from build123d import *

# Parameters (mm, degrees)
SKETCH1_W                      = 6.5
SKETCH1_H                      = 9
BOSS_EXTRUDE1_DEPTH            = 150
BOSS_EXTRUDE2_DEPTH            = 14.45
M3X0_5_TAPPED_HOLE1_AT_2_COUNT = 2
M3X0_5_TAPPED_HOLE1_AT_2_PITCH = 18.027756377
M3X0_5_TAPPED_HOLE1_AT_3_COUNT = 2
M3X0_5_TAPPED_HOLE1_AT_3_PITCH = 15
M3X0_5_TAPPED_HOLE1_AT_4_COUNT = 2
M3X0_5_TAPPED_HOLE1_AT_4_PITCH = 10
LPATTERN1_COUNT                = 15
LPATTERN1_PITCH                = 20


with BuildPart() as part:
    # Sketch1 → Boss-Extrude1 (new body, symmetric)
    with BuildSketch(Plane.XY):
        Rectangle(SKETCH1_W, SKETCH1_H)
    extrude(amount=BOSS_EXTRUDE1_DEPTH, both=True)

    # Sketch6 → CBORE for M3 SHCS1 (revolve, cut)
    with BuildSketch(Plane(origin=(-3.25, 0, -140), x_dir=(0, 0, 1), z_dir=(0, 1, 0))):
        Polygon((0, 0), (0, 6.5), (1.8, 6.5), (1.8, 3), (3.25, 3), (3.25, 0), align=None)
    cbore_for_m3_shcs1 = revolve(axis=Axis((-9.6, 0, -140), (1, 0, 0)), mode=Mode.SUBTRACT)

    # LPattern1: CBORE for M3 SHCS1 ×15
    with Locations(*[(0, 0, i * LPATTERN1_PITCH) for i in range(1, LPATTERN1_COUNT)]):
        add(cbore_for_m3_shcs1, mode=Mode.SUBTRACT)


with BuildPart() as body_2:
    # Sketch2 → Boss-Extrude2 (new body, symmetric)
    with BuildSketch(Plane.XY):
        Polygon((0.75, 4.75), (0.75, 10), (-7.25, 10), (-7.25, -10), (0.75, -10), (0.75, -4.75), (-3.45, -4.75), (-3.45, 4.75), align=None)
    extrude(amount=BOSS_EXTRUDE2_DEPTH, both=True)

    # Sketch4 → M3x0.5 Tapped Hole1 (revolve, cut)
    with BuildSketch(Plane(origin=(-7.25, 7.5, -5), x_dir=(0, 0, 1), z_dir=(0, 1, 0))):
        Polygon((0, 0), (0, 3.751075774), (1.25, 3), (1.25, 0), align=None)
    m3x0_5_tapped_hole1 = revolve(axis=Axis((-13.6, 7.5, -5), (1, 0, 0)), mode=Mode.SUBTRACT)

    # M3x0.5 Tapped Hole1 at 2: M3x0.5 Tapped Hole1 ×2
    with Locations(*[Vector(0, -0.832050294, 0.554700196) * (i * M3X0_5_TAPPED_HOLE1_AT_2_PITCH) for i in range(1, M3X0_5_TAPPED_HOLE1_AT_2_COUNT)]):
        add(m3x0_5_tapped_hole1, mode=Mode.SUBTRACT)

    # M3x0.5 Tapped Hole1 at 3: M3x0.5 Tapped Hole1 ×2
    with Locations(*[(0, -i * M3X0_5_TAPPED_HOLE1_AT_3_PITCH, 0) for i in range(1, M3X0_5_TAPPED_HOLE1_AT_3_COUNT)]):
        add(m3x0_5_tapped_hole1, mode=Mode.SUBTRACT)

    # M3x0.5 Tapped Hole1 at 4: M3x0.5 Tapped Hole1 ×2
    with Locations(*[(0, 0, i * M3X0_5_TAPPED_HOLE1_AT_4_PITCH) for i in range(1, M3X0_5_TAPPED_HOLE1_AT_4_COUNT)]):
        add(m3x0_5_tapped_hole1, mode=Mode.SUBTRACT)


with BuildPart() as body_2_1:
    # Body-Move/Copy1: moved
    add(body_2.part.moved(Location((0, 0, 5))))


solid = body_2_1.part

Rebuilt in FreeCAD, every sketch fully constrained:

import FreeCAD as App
import Part
import Sketcher
from FreeCAD import Vector
Q = App.Units.Quantity

doc = App.newDocument("Part")
body = doc.addObject("PartDesign::Body", "Body")

# Sketch on XY plane
sketch1 = body.newObject("Sketcher::SketchObject", "Sketch")
sketch1.AttachmentSupport = (doc.getObject("XY_Plane"), [""])
sketch1.MapMode = "FlatFace"
sketch1.addGeometry([
    Part.LineSegment(Vector(-3.25, 4.5, 0), Vector(-3.25, -4.5, 0)),
    Part.LineSegment(Vector(-3.25, -4.5, 0), Vector(3.25, -4.5, 0)),
    Part.LineSegment(Vector(3.25, -4.5, 0), Vector(3.25, 4.5, 0)),
    Part.LineSegment(Vector(3.25, 4.5, 0), Vector(-3.25, 4.5, 0)),
], False)
sketch1.addConstraint([
    Sketcher.Constraint("Coincident", 0, 2, 1, 1),
    Sketcher.Constraint("Coincident", 1, 2, 2, 1),
    Sketcher.Constraint("Coincident", 2, 2, 3, 1),
    Sketcher.Constraint("Coincident", 3, 2, 0, 1),
    Sketcher.Constraint("Vertical", 0),
    Sketcher.Constraint("Horizontal", 1),
    Sketcher.Constraint("Vertical", 2),
    Sketcher.Constraint("Horizontal", 3),
    Sketcher.Constraint("Symmetric", 0, 2, 2, 2, -1, 1),
    Sketcher.Constraint("DistanceY", 0, 2, 0, 1, Q("9 mm")),
    Sketcher.Constraint("DistanceX", 1, 1, 1, 2, Q("6.5 mm")),
])
pad1 = body.newObject("PartDesign::Pad", "Pad")
pad1.Profile = sketch1
pad1.Length = 300
pad1.Midplane = True

# Sketch on XZ plane
sketch2 = body.newObject("Sketcher::SketchObject", "Sketch001")
sketch2.AttachmentSupport = (doc.getObject("XZ_Plane"), [""])
sketch2.MapMode = "FlatFace"
sketch2.addGeometry([
    Part.LineSegment(Vector(3.25, -140, 0), Vector(-3.25, -140, 0)),  # 0
    Part.LineSegment(Vector(-3.25, -140, 0), Vector(-3.25, -136.75, 0)),  # 1
    Part.LineSegment(Vector(-3.25, -136.75, 0), Vector(-0.25, -136.75, 0)),  # 2
    Part.LineSegment(Vector(-0.25, -136.75, 0), Vector(-0.25, -138.2, 0)),  # 3
    Part.LineSegment(Vector(-0.25, -138.2, 0), Vector(3.25, -138.2, 0)),  # 4
    Part.LineSegment(Vector(3.25, -138.2, 0), Vector(3.25, -140, 0)),  # 5
], False)
sketch2.addGeometry(Part.LineSegment(Vector(-3.25, -140, 0), Vector(3.25, -140, 0)), True)  # axis
sketch2.addConstraint([
    Sketcher.Constraint("Coincident", 0, 2, 1, 1),
    Sketcher.Constraint("Coincident", 1, 2, 2, 1),
    Sketcher.Constraint("Coincident", 2, 2, 3, 1),
    Sketcher.Constraint("Coincident", 3, 2, 4, 1),
    Sketcher.Constraint("Coincident", 4, 2, 5, 1),
    Sketcher.Constraint("Coincident", 5, 2, 0, 1),
    Sketcher.Constraint("Horizontal", 0),
    Sketcher.Constraint("Vertical", 1),
    Sketcher.Constraint("Horizontal", 2),
    Sketcher.Constraint("Vertical", 3),
    Sketcher.Constraint("Horizontal", 4),
    Sketcher.Constraint("Vertical", 5),
    Sketcher.Constraint("Horizontal", 6),
    Sketcher.Constraint("Coincident", 6, 1, 0, 2),
    Sketcher.Constraint("Vertical", 4, 2, 6, 2),
    Sketcher.Constraint("DistanceX", 2, 1, 2, 2, Q("3 mm")),
    Sketcher.Constraint("DistanceX", 0, 2, 0, 1, Q("6.5 mm")),
    Sketcher.Constraint("DistanceY", 5, 2, 5, 1, Q("1.8 mm")),
    Sketcher.Constraint("DistanceY", 0, 2, -1, 1, Q("140 mm")),
    Sketcher.Constraint("DistanceY", 1, 1, 1, 2, Q("3.25 mm")),
    Sketcher.Constraint("DistanceX", 0, 2, -1, 1, Q("3.25 mm")),
])
groove = body.newObject("PartDesign::Groove", "Groove")
groove.Profile = sketch2
groove.ReferenceAxis = (sketch2, ["Axis0"])
groove.Angle = 360
doc.recompute()

linearpattern = body.newObject("PartDesign::LinearPattern", "LinearPattern")
linearpattern.Originals = [groove]
linearpattern.Direction = (doc.getObject("Z_Axis"), [""])
linearpattern.Mode = "offset"
linearpattern.Offset = 20
linearpattern.Occurrences = 15
body.Tip = linearpattern
body2 = doc.addObject("PartDesign::Body", "Body001")

# Sketch on XY plane
sketch3 = body2.newObject("Sketcher::SketchObject", "Sketch002")
sketch3.AttachmentSupport = (doc.getObject("XY_Plane001"), [""])
sketch3.MapMode = "FlatFace"
sketch3.addGeometry([
    Part.LineSegment(Vector(0.75, 4.75, 0), Vector(0.75, 10, 0)),  # 0
    Part.LineSegment(Vector(0.75, 10, 0), Vector(-7.25, 10, 0)),  # 1
    Part.LineSegment(Vector(-7.25, 10, 0), Vector(-7.25, -10, 0)),  # 2
    Part.LineSegment(Vector(-7.25, -10, 0), Vector(0.75, -10, 0)),  # 3
    Part.LineSegment(Vector(0.75, -10, 0), Vector(0.75, -4.75, 0)),  # 4
    Part.LineSegment(Vector(0.75, -4.75, 0), Vector(-3.45, -4.75, 0)),  # 5
    Part.LineSegment(Vector(-3.45, -4.75, 0), Vector(-3.45, 4.75, 0)),  # 6
    Part.LineSegment(Vector(-3.45, 4.75, 0), Vector(0.75, 4.75, 0)),  # 7
], False)
sketch3.addConstraint([
    Sketcher.Constraint("Coincident", 0, 2, 1, 1),
    Sketcher.Constraint("Coincident", 1, 2, 2, 1),
    Sketcher.Constraint("Coincident", 2, 2, 3, 1),
    Sketcher.Constraint("Coincident", 3, 2, 4, 1),
    Sketcher.Constraint("Coincident", 4, 2, 5, 1),
    Sketcher.Constraint("Coincident", 5, 2, 6, 1),
    Sketcher.Constraint("Coincident", 6, 2, 7, 1),
    Sketcher.Constraint("Coincident", 7, 2, 0, 1),
    Sketcher.Constraint("Vertical", 0),
    Sketcher.Constraint("Horizontal", 1),
    Sketcher.Constraint("Vertical", 2),
    Sketcher.Constraint("Horizontal", 3),
    Sketcher.Constraint("Vertical", 4),
    Sketcher.Constraint("Horizontal", 5),
    Sketcher.Constraint("Vertical", 6),
    Sketcher.Constraint("Horizontal", 7),
    Sketcher.Constraint("Symmetric", 0, 2, 3, 2, -1),
    Sketcher.Constraint("Equal", 0, 4),
    Sketcher.Constraint("DistanceX", 1, 2, 1, 1, Q("8 mm")),
    Sketcher.Constraint("DistanceY", 2, 2, 2, 1, Q("20 mm")),
    Sketcher.Constraint("DistanceX", 5, 2, 5, 1, Q("4.2 mm")),
    Sketcher.Constraint("DistanceY", 6, 1, 6, 2, Q("9.5 mm")),
    Sketcher.Constraint("DistanceX", -1, 1, 0, 2, Q("0.75 mm")),
])
pad2 = body2.newObject("PartDesign::Pad", "Pad001")
pad2.Profile = sketch3
pad2.Length = 28.9
pad2.Midplane = True

# Sketch on XZ plane
sketch4 = body2.newObject("Sketcher::SketchObject", "Sketch003")
sketch4.AttachmentSupport = (doc.getObject("XZ_Plane001"), [""])
sketch4.MapMode = "FlatFace"
sketch4.AttachmentOffset = App.Placement(Vector(0, 0, -7.5), App.Rotation())
sketch4.addGeometry([
    Part.LineSegment(Vector(-3.498924, -5, 0), Vector(-7.25, -5, 0)),
    Part.LineSegment(Vector(-7.25, -5, 0), Vector(-7.25, -3.75, 0)),
    Part.LineSegment(Vector(-7.25, -3.75, 0), Vector(-4.25, -3.75, 0)),
    Part.LineSegment(Vector(-4.25, -3.75, 0), Vector(-3.498924, -5, 0)),
], False)
sketch4.addGeometry(Part.LineSegment(Vector(-7.25, -5, 0), Vector(-3.498924, -5, 0)), True)  # axis
sketch4.addConstraint([
    Sketcher.Constraint("Coincident", 0, 2, 1, 1),
    Sketcher.Constraint("Coincident", 1, 2, 2, 1),
    Sketcher.Constraint("Coincident", 2, 2, 3, 1),
    Sketcher.Constraint("Coincident", 3, 2, 0, 1),
    Sketcher.Constraint("Horizontal", 0),
    Sketcher.Constraint("Vertical", 1),
    Sketcher.Constraint("Horizontal", 2),
    Sketcher.Constraint("Horizontal", 4),
    Sketcher.Constraint("Coincident", 4, 1, 0, 2),
    Sketcher.Constraint("Equal", 0, 4),
    Sketcher.Constraint("DistanceX", 2, 1, 2, 2, Q("3 mm")),
    Sketcher.Constraint("Angle", 3, Q("-59 deg")),
    Sketcher.Constraint("DistanceY", 0, 2, -1, 1, Q("5 mm")),
    Sketcher.Constraint("DistanceY", 1, 1, 1, 2, Q("1.25 mm")),
    Sketcher.Constraint("DistanceX", 0, 2, -1, 1, Q("7.25 mm")),
])
groove2 = body2.newObject("PartDesign::Groove", "Groove001")
groove2.Profile = sketch4
groove2.ReferenceAxis = (sketch4, ["Axis0"])
groove2.Angle = 360
doc.recompute()

datumline = body2.newObject("PartDesign::Line", "DatumLine")
datumline.Placement = App.Placement(Vector(0, 0, 0), App.Rotation(Vector(0, 0, 1), Vector(0, -0.832050294, 0.554700196)))
linearpattern2 = body2.newObject("PartDesign::LinearPattern", "LinearPattern001")
linearpattern2.Originals = [groove2]
linearpattern2.Direction = (datumline, [""])
linearpattern2.Mode = "offset"
linearpattern2.Offset = 18.027756
linearpattern2.Occurrences = 2
body2.Tip = linearpattern2
doc.recompute()

linearpattern3 = body2.newObject("PartDesign::LinearPattern", "LinearPattern002")
linearpattern3.Originals = [groove2]
linearpattern3.Direction = (doc.getObject("Y_Axis001"), [""])
linearpattern3.Mode = "offset"
linearpattern3.Offset = 15
linearpattern3.Occurrences = 2
linearpattern3.Reversed = True
body2.Tip = linearpattern3
doc.recompute()

linearpattern4 = body2.newObject("PartDesign::LinearPattern", "LinearPattern003")
linearpattern4.Originals = [groove2]
linearpattern4.Direction = (doc.getObject("Z_Axis001"), [""])
linearpattern4.Mode = "offset"
linearpattern4.Offset = 10
linearpattern4.Occurrences = 2
body2.Tip = linearpattern4
body3 = doc.addObject("PartDesign::Body", "Body002")
doc.recompute()

body2.Placement = App.Placement(Vector(0, 0, 5), App.Rotation(Vector(0, 0, 1), 0))
boolean = body3.newObject("PartDesign::Boolean", "Boolean")
boolean.Type = "Fuse"
boolean.addObjects([body2])
body.Visibility = False

doc.recompute()
